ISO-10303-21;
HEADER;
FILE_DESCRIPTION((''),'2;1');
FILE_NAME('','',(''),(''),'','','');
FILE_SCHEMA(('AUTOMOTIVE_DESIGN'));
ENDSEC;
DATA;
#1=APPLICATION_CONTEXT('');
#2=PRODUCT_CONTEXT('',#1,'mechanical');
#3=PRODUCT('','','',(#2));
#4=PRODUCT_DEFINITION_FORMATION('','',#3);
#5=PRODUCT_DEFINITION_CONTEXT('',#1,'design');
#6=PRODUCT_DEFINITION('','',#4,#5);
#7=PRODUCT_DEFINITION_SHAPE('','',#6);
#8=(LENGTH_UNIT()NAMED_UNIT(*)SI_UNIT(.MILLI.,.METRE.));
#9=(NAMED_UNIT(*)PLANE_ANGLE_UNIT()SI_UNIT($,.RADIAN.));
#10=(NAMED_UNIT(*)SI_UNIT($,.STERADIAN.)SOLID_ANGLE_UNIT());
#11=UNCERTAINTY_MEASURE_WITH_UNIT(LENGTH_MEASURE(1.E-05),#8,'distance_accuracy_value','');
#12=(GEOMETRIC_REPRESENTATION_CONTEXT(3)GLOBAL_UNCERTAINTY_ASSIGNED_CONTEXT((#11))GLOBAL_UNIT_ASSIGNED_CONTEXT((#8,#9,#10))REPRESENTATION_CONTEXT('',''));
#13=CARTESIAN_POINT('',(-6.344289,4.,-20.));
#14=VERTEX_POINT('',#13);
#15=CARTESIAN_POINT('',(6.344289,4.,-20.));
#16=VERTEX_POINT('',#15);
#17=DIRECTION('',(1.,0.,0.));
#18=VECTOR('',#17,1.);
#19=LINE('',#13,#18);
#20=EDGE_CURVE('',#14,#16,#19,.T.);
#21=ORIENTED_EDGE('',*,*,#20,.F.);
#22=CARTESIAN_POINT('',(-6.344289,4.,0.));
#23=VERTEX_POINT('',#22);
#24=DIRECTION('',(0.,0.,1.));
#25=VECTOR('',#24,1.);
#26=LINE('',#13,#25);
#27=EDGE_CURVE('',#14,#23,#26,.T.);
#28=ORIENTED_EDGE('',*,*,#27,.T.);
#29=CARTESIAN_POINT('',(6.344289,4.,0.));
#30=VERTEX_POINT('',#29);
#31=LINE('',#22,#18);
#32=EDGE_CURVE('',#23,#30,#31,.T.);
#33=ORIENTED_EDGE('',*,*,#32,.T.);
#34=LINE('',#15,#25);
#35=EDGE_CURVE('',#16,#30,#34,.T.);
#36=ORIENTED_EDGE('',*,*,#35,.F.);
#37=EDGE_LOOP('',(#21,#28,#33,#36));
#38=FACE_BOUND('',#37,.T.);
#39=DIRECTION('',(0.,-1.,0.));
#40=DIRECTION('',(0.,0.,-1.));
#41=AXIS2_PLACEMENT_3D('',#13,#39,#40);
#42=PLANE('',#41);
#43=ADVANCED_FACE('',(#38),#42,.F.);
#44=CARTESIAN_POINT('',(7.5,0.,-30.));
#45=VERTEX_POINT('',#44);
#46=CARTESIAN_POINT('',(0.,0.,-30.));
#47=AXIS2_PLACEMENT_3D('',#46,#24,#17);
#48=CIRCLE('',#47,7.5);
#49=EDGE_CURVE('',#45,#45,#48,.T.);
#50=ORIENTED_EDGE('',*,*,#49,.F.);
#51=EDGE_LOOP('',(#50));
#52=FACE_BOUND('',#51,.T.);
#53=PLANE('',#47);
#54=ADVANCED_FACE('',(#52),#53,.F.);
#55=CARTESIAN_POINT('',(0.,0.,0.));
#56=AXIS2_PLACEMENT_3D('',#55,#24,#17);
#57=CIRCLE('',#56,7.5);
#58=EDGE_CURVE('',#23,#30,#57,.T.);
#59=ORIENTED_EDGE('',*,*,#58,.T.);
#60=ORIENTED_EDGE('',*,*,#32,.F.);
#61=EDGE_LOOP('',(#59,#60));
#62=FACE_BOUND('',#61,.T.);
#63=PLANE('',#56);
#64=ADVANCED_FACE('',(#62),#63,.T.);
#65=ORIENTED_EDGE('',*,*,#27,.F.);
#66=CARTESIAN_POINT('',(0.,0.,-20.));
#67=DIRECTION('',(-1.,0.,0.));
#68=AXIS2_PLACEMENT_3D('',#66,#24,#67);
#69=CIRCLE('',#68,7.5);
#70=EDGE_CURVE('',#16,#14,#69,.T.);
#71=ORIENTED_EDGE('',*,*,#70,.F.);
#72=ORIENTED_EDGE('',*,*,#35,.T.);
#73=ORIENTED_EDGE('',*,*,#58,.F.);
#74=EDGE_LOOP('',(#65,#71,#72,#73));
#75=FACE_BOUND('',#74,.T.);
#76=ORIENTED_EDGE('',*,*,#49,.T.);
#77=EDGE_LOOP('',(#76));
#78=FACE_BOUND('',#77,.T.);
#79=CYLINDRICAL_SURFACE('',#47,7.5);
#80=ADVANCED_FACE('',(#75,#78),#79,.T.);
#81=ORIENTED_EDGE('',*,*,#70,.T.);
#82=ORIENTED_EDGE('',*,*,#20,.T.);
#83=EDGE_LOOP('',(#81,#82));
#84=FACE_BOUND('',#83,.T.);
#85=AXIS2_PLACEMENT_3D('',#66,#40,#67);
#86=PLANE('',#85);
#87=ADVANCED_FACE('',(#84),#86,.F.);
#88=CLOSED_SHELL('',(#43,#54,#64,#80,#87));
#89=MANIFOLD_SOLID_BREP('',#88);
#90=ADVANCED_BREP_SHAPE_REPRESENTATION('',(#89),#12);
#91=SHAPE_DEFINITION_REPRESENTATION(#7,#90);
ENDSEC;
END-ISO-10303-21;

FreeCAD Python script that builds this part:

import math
import FreeCAD as App
import Part
import Sketcher

V = App.Vector
Q = App.Units.Quantity

doc = App.newDocument("Part")
body = doc.addObject("PartDesign::Body", "Body")

# Sketch on XY plane
sketch1 = body.newObject("Sketcher::SketchObject", "Sketch")
sketch1.AttachmentSupport = (doc.getObject("XY_Plane"), [""])
sketch1.MapMode = "FlatFace"
sketch1.addGeometry(Part.Circle(V(0, 0, 0), V(0, 0, 1), 8), False)
sketch1.addConstraint([
    Sketcher.Constraint("Coincident", 0, 3, -1, 1),
    Sketcher.Constraint("Diameter", 0, Q("15 mm")),
])
pad1 = body.newObject("PartDesign::Pad", "Pad")
pad1.Profile = sketch1
pad1.Length = 30
pad1.Reversed = True

# Sketch on XY plane
sketch2 = body.newObject("Sketcher::SketchObject", "Sketch001")
sketch2.AttachmentSupport = (doc.getObject("XY_Plane"), [""])
sketch2.MapMode = "FlatFace"
sketch2.addGeometry([
    Part.LineSegment(V(-6, 4, 0), V(6, 4, 0)),
    Part.ArcOfCircle(Part.Circle(V(0, 0, 0), V(0, 0, 1), 8), math.radians(32), math.radians(148)),
], False)
sketch2.addConstraint([
    Sketcher.Constraint("Coincident", 0, 1, 1, 2),
    Sketcher.Constraint("Coincident", 1, 1, 0, 2),
    Sketcher.Constraint("Horizontal", 0),
    Sketcher.Constraint("Coincident", 1, 3, -1, 1),
    Sketcher.Constraint("Radius", 1, Q("7.5 mm")),
    Sketcher.Constraint("DistanceY", -1, 1, 0, 1, Q("4 mm")),
])
pocket1 = body.newObject("PartDesign::Pocket", "Pocket")
pocket1.Profile = sketch2
pocket1.Length = 20

doc.recompute()
